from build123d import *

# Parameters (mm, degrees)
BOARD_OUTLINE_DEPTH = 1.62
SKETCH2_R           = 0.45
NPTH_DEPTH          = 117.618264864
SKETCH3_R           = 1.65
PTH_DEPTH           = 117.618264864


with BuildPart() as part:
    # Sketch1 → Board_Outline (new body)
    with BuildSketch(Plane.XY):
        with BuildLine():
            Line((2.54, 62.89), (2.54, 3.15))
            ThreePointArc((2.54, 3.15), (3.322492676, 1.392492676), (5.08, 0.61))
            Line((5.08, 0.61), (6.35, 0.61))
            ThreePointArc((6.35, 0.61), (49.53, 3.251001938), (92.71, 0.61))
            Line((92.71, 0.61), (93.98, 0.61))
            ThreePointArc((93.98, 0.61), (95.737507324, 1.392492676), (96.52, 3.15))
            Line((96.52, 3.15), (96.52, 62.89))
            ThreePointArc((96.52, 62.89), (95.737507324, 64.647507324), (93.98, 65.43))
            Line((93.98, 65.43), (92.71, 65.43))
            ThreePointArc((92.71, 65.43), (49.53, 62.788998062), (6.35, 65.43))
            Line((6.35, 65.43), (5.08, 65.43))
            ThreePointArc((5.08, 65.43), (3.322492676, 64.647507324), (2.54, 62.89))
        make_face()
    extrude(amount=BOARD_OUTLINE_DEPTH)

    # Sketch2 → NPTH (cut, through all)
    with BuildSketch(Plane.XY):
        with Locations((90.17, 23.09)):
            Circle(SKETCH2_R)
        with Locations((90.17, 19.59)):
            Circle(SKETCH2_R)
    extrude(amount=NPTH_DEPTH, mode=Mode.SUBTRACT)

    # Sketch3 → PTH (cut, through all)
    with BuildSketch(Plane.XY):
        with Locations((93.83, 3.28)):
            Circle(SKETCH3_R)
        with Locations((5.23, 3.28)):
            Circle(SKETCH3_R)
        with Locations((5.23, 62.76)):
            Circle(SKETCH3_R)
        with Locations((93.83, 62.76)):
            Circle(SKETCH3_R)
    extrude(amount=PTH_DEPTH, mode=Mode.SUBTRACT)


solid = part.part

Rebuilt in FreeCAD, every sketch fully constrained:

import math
import FreeCAD as App
import Part
import Sketcher
Q = App.Units.Quantity

doc = App.newDocument("Part")
params = doc.addObject("Spreadsheet::Sheet", "Params")
for row, (alias, value) in enumerate([
    ("sketch1_width", "1.27 mm"),
    ("sketch1_height", "59.74 mm"),
    ("pad1_length", "1.62 mm"),
    ("sketch2_diameter", "0.9 mm"),
    ("sketch3_diameter", "3.3 mm"),
], start=1):
    params.set(f"A{row}", alias)
    params.set(f"B{row}", "=" + value)
    params.setAlias(f"B{row}", alias)

body = doc.addObject("PartDesign::Body", "Body")

# Sketch on XY plane
sketch1 = body.newObject("Sketcher::SketchObject", "Sketch")
sketch1.AttachmentSupport = (doc.getObject("XY_Plane"), [""])
sketch1.MapMode = "FlatFace"
sketch1.addGeometry([
    Part.LineSegment(App.Vector(2.5, 62.9, 0), App.Vector(2.5, 3.1, 0)),  # 0
    Part.ArcOfCircle(Part.Circle(App.Vector(5.2, 3.3, 0), App.Vector(0, 0, 1), 2.7), math.radians(-177), math.radians(-93)),  # 1
    Part.LineSegment(App.Vector(5.1, 0.6, 0), App.Vector(6.3, 0.6, 0)),  # 2
    Part.ArcOfCircle(Part.Circle(App.Vector(49.5, -351.1, 0), App.Vector(0, 0, 1), 354.3), math.radians(83), math.radians(97)),  # 3
    Part.LineSegment(App.Vector(92.7, 0.6, 0), App.Vector(94, 0.6, 0)),  # 4
    Part.ArcOfCircle(Part.Circle(App.Vector(93.8, 3.3, 0), App.Vector(0, 0, 1), 2.7), math.radians(-87), math.radians(-3)),  # 5
    Part.LineSegment(App.Vector(96.5, 3.1, 0), App.Vector(96.5, 62.9, 0)),  # 6
    Part.ArcOfCircle(Part.Circle(App.Vector(93.8, 62.7, 0), App.Vector(0, 0, 1), 2.7), math.radians(3), math.radians(87)),  # 7
    Part.LineSegment(App.Vector(94, 65.4, 0), App.Vector(92.7, 65.4, 0)),  # 8
    Part.ArcOfCircle(Part.Circle(App.Vector(49.5, 417.1, 0), App.Vector(0, 0, 1), 354.3), math.radians(-97), math.radians(-83)),  # 9
    Part.LineSegment(App.Vector(6.3, 65.4, 0), App.Vector(5.1, 65.4, 0)),  # 10
    Part.ArcOfCircle(Part.Circle(App.Vector(5.2, 62.7, 0), App.Vector(0, 0, 1), 2.7), math.radians(93), math.radians(177)),  # 11
], False)
sketch1.addConstraint([
    Sketcher.Constraint("Coincident", 0, 2, 1, 1),
    Sketcher.Constraint("Coincident", 1, 2, 2, 1),
    Sketcher.Constraint("Coincident", 2, 2, 3, 2),
    Sketcher.Constraint("Coincident", 3, 1, 4, 1),
    Sketcher.Constraint("Coincident", 4, 2, 5, 1),
    Sketcher.Constraint("Coincident", 5, 2, 6, 1),
    Sketcher.Constraint("Coincident", 6, 2, 7, 1),
    Sketcher.Constraint("Coincident", 7, 2, 8, 1),
    Sketcher.Constraint("Coincident", 8, 2, 9, 2),
    Sketcher.Constraint("Coincident", 9, 1, 10, 1),
    Sketcher.Constraint("Coincident", 10, 2, 11, 1),
    Sketcher.Constraint("Coincident", 11, 2, 0, 1),
    Sketcher.Constraint("Vertical", 0),
    Sketcher.Constraint("Horizontal", 2),
    Sketcher.Constraint("Horizontal", 4),
    Sketcher.Constraint("Vertical", 6),
    Sketcher.Constraint("Horizontal", 8),
    Sketcher.Constraint("Horizontal", 10),
    Sketcher.Constraint("Equal", 1, 5),
    Sketcher.Constraint("Equal", 5, 7),
    Sketcher.Constraint("Equal", 3, 9),
    Sketcher.Constraint("Equal", 7, 11),
    Sketcher.Constraint("Horizontal", 1, 3, 5, 3),
    Sketcher.Constraint("Horizontal", 7, 3, 11, 3),
    Sketcher.Constraint("Horizontal", 0, 2, 5, 2),
    Sketcher.Constraint("Horizontal", 6, 2, 11, 2),
    Sketcher.Constraint("Vertical", 5, 3, 7, 3),
    Sketcher.Constraint("Vertical", 3, 3, 9, 3),
    Sketcher.Constraint("Vertical", 4, 2, 7, 2),
    Sketcher.Constraint("Vertical", 3, 1, 8, 2),
    Sketcher.Constraint("Vertical", 1, 2, 10, 2),
    Sketcher.Constraint("Equal", 2, 4),
    Sketcher.Constraint("DistanceX", 2, 1, 2, 2, Q("1.27 mm")),
    Sketcher.Constraint("DistanceY", 0, 2, 0, 1, Q("59.74 mm")),
    Sketcher.Constraint("DistanceX", -1, 1, 3, 3, Q("49.53 mm")),
    Sketcher.Constraint("DistanceX", -1, 1, 0, 2, Q("2.54 mm")),
    Sketcher.Constraint("DistanceY", -1, 1, 0, 2, Q("3.15 mm")),
    Sketcher.Constraint("DistanceX", -1, 1, 1, 2, Q("5.08 mm")),
    Sketcher.Constraint("DistanceY", -1, 1, 1, 2, Q("0.61 mm")),
    Sketcher.Constraint("DistanceX", -1, 1, 4, 2, Q("93.98 mm")),
    Sketcher.Constraint("Radius", 3, Q("354.313881 mm")),
    Sketcher.Constraint("Radius", 1, Q("2.684156 mm")),
])
sketch1.setExpression("Constraints[32]", "Params.sketch1_width")
sketch1.setExpression("Constraints[33]", "Params.sketch1_height")
pad1 = body.newObject("PartDesign::Pad", "Pad")
pad1.Profile = sketch1
pad1.setExpression("Length", "Params.pad1_length")

# Sketch on XY plane
sketch2 = body.newObject("Sketcher::SketchObject", "Sketch001")
sketch2.AttachmentSupport = (doc.getObject("XY_Plane"), [""])
sketch2.MapMode = "FlatFace"
sketch2.addGeometry([
    Part.Circle(App.Vector(90.17, 23.09, 0), App.Vector(0, 0, 1), 0.45),
    Part.Circle(App.Vector(90.17, 19.59, 0), App.Vector(0, 0, 1), 0.45),
], False)
sketch2.addConstraint([
    Sketcher.Constraint("Equal", 0, 1),
    Sketcher.Constraint("Vertical", 0, 3, 1, 3),
    Sketcher.Constraint("Diameter", 0, Q("0.9 mm")),
    Sketcher.Constraint("DistanceY", 1, 3, 0, 3, Q("3.5 mm")),
    Sketcher.Constraint("DistanceX", -1, 1, 0, 3, Q("90.17 mm")),
    Sketcher.Constraint("DistanceY", -1, 1, 0, 3, Q("23.09 mm")),
])
sketch2.setExpression("Constraints[2]", "Params.sketch2_diameter")
pocket1 = body.newObject("PartDesign::Pocket", "Pocket")
pocket1.Profile = sketch2
pocket1.Type = "ThroughAll"
pocket1.Reversed = True

# Sketch on XY plane
sketch3 = body.newObject("Sketcher::SketchObject", "Sketch002")
sketch3.AttachmentSupport = (doc.getObject("XY_Plane"), [""])
sketch3.MapMode = "FlatFace"
sketch3.addGeometry([
    Part.Circle(App.Vector(93.8, 3.3, 0), App.Vector(0, 0, 1), 1.6),
    Part.Circle(App.Vector(5.2, 3.3, 0), App.Vector(0, 0, 1), 1.6),
    Part.Circle(App.Vector(5.2, 62.8, 0), App.Vector(0, 0, 1), 1.6),
    Part.Circle(App.Vector(93.8, 62.8, 0), App.Vector(0, 0, 1), 1.6),
], False)
sketch3.addConstraint([
    Sketcher.Constraint("Equal", 0, 1),
    Sketcher.Constraint("Equal", 1, 2),
    Sketcher.Constraint("Equal", 2, 3),
    Sketcher.Constraint("Horizontal", 0, 3, 1, 3),
    Sketcher.Constraint("Horizontal", 2, 3, 3, 3),
    Sketcher.Constraint("Vertical", 1, 3, 2, 3),
    Sketcher.Constraint("Vertical", 0, 3, 3, 3),
    Sketcher.Constraint("Diameter", 0, Q("3.3 mm")),
    Sketcher.Constraint("DistanceX", 1, 3, 0, 3, Q("88.6 mm")),
    Sketcher.Constraint("DistanceX", -1, 1, 0, 3, Q("93.83 mm")),
    Sketcher.Constraint("DistanceY", -1, 1, 0, 3, Q("3.28 mm")),
    Sketcher.Constraint("DistanceY", -1, 1, 2, 3, Q("62.76 mm")),
])
sketch3.setExpression("Constraints[7]", "Params.sketch3_diameter")
pocket2 = body.newObject("PartDesign::Pocket", "Pocket001")
pocket2.Profile = sketch3
pocket2.Type = "ThroughAll"
pocket2.Reversed = True

doc.recompute()
